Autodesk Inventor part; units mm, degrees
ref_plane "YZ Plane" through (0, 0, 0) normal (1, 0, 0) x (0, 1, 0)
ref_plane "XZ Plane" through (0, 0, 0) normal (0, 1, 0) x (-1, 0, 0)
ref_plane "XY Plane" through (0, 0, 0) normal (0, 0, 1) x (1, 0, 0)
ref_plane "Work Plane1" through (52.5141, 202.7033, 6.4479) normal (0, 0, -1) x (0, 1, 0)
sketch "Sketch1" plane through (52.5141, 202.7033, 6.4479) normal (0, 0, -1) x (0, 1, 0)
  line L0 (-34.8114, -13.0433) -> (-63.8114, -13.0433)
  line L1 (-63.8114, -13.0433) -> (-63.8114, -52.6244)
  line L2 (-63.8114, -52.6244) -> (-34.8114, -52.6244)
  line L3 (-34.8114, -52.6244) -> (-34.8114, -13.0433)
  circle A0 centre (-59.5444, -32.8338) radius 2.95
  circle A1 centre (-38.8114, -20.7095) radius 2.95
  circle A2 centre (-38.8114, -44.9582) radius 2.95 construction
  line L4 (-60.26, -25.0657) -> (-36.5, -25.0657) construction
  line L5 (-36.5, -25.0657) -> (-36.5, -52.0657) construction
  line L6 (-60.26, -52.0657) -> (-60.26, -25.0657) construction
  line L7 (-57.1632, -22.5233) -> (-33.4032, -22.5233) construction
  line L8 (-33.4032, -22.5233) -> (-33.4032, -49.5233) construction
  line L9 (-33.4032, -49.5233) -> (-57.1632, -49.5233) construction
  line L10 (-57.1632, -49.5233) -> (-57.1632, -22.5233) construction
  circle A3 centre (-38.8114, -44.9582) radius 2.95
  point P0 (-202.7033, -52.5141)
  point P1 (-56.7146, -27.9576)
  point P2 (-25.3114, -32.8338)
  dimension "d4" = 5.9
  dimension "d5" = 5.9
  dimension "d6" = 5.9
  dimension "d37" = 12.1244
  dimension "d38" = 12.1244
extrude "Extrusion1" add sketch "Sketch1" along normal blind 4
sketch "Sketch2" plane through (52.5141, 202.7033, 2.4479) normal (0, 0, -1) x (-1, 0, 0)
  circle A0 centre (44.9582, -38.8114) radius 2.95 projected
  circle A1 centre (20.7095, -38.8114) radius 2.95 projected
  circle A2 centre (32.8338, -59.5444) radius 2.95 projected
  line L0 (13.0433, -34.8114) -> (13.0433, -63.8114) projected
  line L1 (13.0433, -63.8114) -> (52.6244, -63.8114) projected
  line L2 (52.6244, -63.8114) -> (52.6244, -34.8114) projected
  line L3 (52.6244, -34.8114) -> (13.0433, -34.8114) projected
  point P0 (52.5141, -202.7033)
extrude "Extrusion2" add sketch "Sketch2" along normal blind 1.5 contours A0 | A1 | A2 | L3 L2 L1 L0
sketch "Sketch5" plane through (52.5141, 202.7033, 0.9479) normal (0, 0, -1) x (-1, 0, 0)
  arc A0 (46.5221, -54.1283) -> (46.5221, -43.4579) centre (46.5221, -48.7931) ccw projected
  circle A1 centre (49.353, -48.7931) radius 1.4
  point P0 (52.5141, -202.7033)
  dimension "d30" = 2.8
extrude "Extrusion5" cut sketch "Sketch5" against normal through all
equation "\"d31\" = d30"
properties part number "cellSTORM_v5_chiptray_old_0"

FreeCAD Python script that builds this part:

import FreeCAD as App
import Part
import Sketcher

V = App.Vector

doc = App.newDocument("Part")
body = doc.addObject("PartDesign::Body", "Body")

sketch1 = body.newObject("Sketcher::SketchObject", "Sketch")
sketch1.AttachmentSupport = (doc.getObject("XY_Plane"), [""])
sketch1.MapMode = "FlatFace"
sketch1.AttachmentOffset = App.Placement(V(0, 0, 6.4479), App.Rotation())
sketch1.addGeometry([
    Part.LineSegment(V(-0.1103, 167.8919, 0), V(39.4708, 167.8919, 0)),
    Part.LineSegment(V(39.4708, 167.8919, 0), V(39.4708, 138.8919, 0)),
    Part.LineSegment(V(39.4708, 138.8919, 0), V(-0.1103, 138.8919, 0)),
    Part.LineSegment(V(-0.1103, 138.8919, 0), V(-0.1103, 167.8919, 0)),
    Part.Circle(V(7.5559, 163.8919, 0), V(0, 0, 1), 2.95),
    Part.Circle(V(19.6803, 143.1589, 0), V(0, 0, 1), 2.95),
    Part.Circle(V(31.8046, 163.8919, 0), V(0, 0, 1), 2.95),
], False)
sketch1.addConstraint([
    Sketcher.Constraint("Coincident", 0, 2, 1, 1),
    Sketcher.Constraint("Coincident", 1, 2, 2, 1),
    Sketcher.Constraint("Coincident", 2, 2, 3, 1),
    Sketcher.Constraint("Coincident", 3, 2, 0, 1),
    Sketcher.Constraint("Horizontal", 0),
    Sketcher.Constraint("Vertical", 1),
    Sketcher.Constraint("Horizontal", 2),
    Sketcher.Constraint("Vertical", 3),
    Sketcher.Constraint("Equal", 4, 5),
    Sketcher.Constraint("Equal", 5, 6),
    Sketcher.Constraint("Horizontal", 4, 3, 6, 3),
    Sketcher.Constraint("Diameter", 4, 5.9),
    Sketcher.Constraint("DistanceY", 1, 2, 1, 1, 29.0),
    Sketcher.Constraint("DistanceY", 6, 3, 0, 2, 4.0),
    Sketcher.Constraint("DistanceX", 4, 3, 5, 3, 12.1244),
    Sketcher.Constraint("DistanceX", 5, 3, 6, 3, 12.1243),
    Sketcher.Constraint("DistanceX", 0, 1, 0, 2, 39.581),
    Sketcher.Constraint("DistanceX", -1, 1, 4, 3, 7.556),
    Sketcher.Constraint("DistanceY", -1, 1, 4, 3, 163.892),
    Sketcher.Constraint("DistanceY", -1, 1, 5, 3, 143.159),
    Sketcher.Constraint("DistanceX", 4, 3, 0, 2, 31.915),
])
pad1 = body.newObject("PartDesign::Pad", "Pad")
pad1.Profile = sketch1
pad1.Length = 4
pad1.Reversed = True

sketch2 = body.newObject("Sketcher::SketchObject", "Sketch001")
sketch2.AttachmentSupport = (doc.getObject("XY_Plane"), [""])
sketch2.MapMode = "FlatFace"
sketch2.AttachmentOffset = App.Placement(V(0, 0, 2.4479), App.Rotation())
sketch2.addGeometry([
    Part.LineSegment(V(-0.1103, 167.8919, 0), V(39.4708, 167.8919, 0)),
    Part.LineSegment(V(39.4708, 167.8919, 0), V(39.4708, 138.8919, 0)),
    Part.LineSegment(V(39.4708, 138.8919, 0), V(-0.1103, 138.8919, 0)),
    Part.LineSegment(V(-0.1103, 138.8919, 0), V(-0.1103, 167.8919, 0)),
], False)
sketch2.addConstraint([
    Sketcher.Constraint("Coincident", 0, 2, 1, 1),
    Sketcher.Constraint("Coincident", 1, 2, 2, 1),
    Sketcher.Constraint("Coincident", 2, 2, 3, 1),
    Sketcher.Constraint("Coincident", 3, 2, 0, 1),
    Sketcher.Constraint("Horizontal", 0),
    Sketcher.Constraint("Vertical", 1),
    Sketcher.Constraint("Horizontal", 2),
    Sketcher.Constraint("Vertical", 3),
    Sketcher.Constraint("DistanceY", 1, 2, 1, 1, 29.0),
    Sketcher.Constraint("DistanceX", 0, 1, 0, 2, 39.581),
    Sketcher.Constraint("DistanceY", -1, 1, 0, 2, 167.892),
    Sketcher.Constraint("DistanceX", -1, 1, 0, 2, 39.4708),
])
pad2 = body.newObject("PartDesign::Pad", "Pad001")
pad2.Profile = sketch2
pad2.Length = 1.5
pad2.Reversed = True

sketch3 = body.newObject("Sketcher::SketchObject", "Sketch002")
sketch3.AttachmentSupport = (doc.getObject("XY_Plane"), [""])
sketch3.MapMode = "FlatFace"
sketch3.AttachmentOffset = App.Placement(V(0, 0, 0.9479), App.Rotation())
sketch3.addGeometry(Part.Circle(V(3.1611, 153.9102, 0), V(0, 0, 1), 1.4), False)
sketch3.addConstraint([
    Sketcher.Constraint("Diameter", 0, 2.8),
    Sketcher.Constraint("DistanceX", -1, 1, 0, 3, 3.161),
    Sketcher.Constraint("DistanceY", -1, 1, 0, 3, 153.9102),
])
pocket1 = body.newObject("PartDesign::Pocket", "Pocket")
pocket1.Profile = sketch3
pocket1.Type = "ThroughAll"
pocket1.Reversed = True

doc.recompute()
